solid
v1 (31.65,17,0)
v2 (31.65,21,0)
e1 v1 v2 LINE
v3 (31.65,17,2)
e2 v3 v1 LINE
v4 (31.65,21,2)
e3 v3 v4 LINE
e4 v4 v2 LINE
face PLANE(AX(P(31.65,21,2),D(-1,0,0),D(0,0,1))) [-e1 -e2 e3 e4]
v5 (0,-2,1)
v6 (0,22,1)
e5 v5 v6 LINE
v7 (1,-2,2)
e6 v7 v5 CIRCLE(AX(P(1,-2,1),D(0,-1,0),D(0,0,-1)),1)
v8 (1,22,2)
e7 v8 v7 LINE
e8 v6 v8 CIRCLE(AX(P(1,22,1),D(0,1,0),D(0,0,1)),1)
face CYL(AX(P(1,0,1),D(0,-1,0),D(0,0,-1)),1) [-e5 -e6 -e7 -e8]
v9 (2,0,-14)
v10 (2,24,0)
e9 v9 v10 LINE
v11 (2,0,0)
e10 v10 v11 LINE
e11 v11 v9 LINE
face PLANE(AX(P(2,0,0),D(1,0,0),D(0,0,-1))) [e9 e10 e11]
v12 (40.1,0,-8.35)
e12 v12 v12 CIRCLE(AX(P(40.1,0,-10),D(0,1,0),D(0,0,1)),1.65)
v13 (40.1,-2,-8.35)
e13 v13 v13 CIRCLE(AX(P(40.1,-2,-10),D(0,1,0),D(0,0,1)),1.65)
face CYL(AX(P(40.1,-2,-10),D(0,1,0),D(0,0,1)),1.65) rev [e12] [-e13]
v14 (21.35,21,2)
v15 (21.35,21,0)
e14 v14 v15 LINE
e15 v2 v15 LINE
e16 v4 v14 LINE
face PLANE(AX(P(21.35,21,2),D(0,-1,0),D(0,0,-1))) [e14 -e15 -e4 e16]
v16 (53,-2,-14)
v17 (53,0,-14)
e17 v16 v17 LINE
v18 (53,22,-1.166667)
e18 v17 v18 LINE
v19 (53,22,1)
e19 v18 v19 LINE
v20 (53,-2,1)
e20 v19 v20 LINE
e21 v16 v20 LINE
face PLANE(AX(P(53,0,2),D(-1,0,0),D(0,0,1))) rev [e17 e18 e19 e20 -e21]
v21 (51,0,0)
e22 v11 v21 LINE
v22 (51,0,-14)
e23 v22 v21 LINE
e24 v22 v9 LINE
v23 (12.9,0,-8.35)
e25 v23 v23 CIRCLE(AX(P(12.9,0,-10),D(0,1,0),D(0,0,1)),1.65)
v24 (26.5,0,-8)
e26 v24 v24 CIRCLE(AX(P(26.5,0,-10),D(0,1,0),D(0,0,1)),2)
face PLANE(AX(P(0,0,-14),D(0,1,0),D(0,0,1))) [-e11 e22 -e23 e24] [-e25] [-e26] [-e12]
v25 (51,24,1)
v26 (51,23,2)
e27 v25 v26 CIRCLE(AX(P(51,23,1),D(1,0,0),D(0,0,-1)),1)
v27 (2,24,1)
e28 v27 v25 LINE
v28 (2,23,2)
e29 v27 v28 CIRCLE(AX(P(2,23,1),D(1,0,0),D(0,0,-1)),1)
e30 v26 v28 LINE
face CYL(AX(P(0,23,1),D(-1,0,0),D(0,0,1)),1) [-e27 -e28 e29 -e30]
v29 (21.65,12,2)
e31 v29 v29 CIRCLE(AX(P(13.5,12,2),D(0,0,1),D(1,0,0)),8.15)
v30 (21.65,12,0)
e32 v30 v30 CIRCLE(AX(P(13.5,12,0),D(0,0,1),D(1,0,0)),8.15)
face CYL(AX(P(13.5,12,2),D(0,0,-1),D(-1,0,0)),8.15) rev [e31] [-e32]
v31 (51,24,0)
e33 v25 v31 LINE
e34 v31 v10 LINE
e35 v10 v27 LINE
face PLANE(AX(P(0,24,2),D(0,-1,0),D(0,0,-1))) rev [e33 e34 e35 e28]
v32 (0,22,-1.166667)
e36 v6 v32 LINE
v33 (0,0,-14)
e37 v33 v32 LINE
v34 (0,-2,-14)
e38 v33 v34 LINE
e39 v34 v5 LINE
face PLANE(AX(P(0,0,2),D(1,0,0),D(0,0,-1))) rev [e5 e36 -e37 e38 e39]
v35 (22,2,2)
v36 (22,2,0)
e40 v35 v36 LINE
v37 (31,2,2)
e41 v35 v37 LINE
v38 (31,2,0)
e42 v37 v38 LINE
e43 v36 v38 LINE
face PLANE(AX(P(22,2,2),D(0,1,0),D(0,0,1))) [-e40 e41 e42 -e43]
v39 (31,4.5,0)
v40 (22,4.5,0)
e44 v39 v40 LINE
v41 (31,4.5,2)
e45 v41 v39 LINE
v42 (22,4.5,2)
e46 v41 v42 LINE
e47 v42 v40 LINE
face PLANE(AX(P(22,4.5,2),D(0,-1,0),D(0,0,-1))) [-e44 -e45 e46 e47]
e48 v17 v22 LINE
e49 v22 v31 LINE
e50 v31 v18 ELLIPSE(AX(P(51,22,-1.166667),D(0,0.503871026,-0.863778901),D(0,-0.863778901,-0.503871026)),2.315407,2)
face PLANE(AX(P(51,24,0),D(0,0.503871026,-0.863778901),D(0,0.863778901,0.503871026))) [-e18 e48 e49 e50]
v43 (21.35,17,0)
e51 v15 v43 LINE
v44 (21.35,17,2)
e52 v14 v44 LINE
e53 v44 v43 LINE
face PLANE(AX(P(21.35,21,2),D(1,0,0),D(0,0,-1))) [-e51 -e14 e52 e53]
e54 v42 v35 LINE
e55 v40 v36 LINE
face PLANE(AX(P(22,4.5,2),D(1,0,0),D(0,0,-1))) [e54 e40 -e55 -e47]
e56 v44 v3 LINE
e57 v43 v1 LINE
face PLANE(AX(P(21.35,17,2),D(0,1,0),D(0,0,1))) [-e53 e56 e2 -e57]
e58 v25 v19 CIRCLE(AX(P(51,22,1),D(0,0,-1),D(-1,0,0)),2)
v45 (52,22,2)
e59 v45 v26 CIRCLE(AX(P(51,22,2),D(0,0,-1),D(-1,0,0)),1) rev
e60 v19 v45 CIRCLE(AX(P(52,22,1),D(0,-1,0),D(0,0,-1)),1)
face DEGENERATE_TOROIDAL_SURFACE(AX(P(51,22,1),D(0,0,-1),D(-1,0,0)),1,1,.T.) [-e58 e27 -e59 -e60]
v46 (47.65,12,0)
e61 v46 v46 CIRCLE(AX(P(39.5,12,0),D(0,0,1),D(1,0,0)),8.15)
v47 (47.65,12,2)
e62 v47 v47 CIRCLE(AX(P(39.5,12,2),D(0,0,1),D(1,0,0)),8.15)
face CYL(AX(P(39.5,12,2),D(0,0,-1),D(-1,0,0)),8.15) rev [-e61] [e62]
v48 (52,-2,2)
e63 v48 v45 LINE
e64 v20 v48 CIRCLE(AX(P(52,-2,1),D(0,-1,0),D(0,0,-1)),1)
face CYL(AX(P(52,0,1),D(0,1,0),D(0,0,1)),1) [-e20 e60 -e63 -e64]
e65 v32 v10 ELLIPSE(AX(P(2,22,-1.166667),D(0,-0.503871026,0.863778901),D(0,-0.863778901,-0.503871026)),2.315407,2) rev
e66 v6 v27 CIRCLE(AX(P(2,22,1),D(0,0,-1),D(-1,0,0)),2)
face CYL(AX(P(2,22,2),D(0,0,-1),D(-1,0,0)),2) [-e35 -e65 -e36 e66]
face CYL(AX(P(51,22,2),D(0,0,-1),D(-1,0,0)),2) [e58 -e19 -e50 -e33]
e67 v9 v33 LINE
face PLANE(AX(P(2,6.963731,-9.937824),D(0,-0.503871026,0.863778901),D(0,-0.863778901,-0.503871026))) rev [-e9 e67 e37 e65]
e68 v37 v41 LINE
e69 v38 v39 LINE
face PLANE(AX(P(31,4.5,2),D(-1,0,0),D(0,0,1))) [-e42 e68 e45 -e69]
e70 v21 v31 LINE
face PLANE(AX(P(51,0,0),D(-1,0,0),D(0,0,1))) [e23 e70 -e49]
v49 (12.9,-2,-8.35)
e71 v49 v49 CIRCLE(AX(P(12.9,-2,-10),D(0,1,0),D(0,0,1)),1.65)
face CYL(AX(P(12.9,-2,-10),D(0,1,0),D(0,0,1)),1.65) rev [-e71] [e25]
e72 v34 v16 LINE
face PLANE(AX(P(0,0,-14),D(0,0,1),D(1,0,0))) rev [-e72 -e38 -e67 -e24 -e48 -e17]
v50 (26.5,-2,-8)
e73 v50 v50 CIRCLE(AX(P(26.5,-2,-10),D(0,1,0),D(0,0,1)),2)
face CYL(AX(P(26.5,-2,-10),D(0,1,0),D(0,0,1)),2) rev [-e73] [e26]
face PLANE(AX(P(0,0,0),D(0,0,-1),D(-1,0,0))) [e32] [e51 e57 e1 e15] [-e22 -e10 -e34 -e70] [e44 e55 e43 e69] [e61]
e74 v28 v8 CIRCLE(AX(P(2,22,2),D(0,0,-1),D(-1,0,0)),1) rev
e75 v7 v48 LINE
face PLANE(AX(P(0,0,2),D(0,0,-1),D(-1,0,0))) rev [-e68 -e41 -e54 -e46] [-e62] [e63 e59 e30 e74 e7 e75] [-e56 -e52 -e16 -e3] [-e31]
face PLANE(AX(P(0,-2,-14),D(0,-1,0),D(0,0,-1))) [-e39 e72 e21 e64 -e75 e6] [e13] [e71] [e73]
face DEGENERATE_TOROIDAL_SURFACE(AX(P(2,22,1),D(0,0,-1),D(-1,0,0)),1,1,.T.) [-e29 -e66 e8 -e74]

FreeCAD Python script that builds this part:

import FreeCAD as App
import Part
import Sketcher


def edges_at(feature, points):
    """Names of the edges that pass closest to the given points."""
    edges = feature.Shape.Edges
    near = lambda p: min(range(len(edges)), key=lambda i: edges[i].distToShape(Part.Vertex(*p))[0])
    return sorted({f"Edge{near(p) + 1}" for p in points})


def add_polygon(sketch, points):
    """Adds a closed chain of lines whose ends are joined by coincident constraints."""
    first, n = sketch.GeometryCount, len(points)
    for a, b in zip(points, points[1:] + points[:1]):
        sketch.addGeometry(Part.LineSegment(App.Vector(*a, 0), App.Vector(*b, 0)), False)
    for i in range(n):
        sketch.addConstraint(Sketcher.Constraint("Coincident", first + i, 2, first + (i + 1) % n, 1))

doc = App.newDocument("Part")
body = doc.addObject("PartDesign::Body", "Body")

# Sketch on XY plane
sketch1 = body.newObject("Sketcher::SketchObject", "Sketch")
sketch1.AttachmentSupport = (doc.getObject("XY_Plane"), [""])
sketch1.MapMode = "FlatFace"
add_polygon(sketch1, [(0, 24), (0, 0), (53, 0), (53, 24)])  # lines 0-3
add_polygon(sketch1, [(31, 2), (22, 2), (22, 4.5), (31, 4.5)])  # lines 4-7
sketch1.addGeometry(Part.Circle(App.Vector(13.5, 12, 0), App.Vector(0, 0, 1), 8.15), False)  # 8
sketch1.addGeometry(Part.Circle(App.Vector(39.5, 12, 0), App.Vector(0, 0, 1), 8.15), False)  # 9
add_polygon(sketch1, [(31.65, 17), (21.35, 17), (21.35, 21), (31.65, 21)])  # lines 10-13
sketch1.addConstraint(Sketcher.Constraint("Vertical", 0))
sketch1.addConstraint(Sketcher.Constraint("Horizontal", 1))
sketch1.addConstraint(Sketcher.Constraint("Vertical", 2))
sketch1.addConstraint(Sketcher.Constraint("Horizontal", 3))
sketch1.addConstraint(Sketcher.Constraint("Horizontal", 4))
sketch1.addConstraint(Sketcher.Constraint("Vertical", 5))
sketch1.addConstraint(Sketcher.Constraint("Horizontal", 6))
sketch1.addConstraint(Sketcher.Constraint("Vertical", 7))
sketch1.addConstraint(Sketcher.Constraint("Horizontal", 10))
sketch1.addConstraint(Sketcher.Constraint("Vertical", 11))
sketch1.addConstraint(Sketcher.Constraint("Horizontal", 12))
sketch1.addConstraint(Sketcher.Constraint("Vertical", 13))
sketch1.addConstraint(Sketcher.Constraint("Coincident", 0, 2, -1, 1))
sketch1.addConstraint(Sketcher.Constraint("Equal", 8, 9))
sketch1.addConstraint(Sketcher.Constraint("Horizontal", 8, 3, 9, 3))
sketch1.addConstraint(Sketcher.Constraint("Diameter", 8, 16.3))
sketch1.addConstraint(Sketcher.Constraint("DistanceX", 1, 1, 1, 2, 53.0))
sketch1.addConstraint(Sketcher.Constraint("DistanceX", 4, 2, 4, 1, 9.0))
sketch1.addConstraint(Sketcher.Constraint("DistanceY", 0, 2, 0, 1, 24.0))
sketch1.addConstraint(Sketcher.Constraint("DistanceY", 11, 1, 11, 2, 4.0))
sketch1.addConstraint(Sketcher.Constraint("DistanceX", 10, 2, 10, 1, 10.3))
sketch1.addConstraint(Sketcher.Constraint("DistanceY", 5, 1, 5, 2, 2.5))
sketch1.addConstraint(Sketcher.Constraint("DistanceY", -1, 1, 8, 3, 12.0))
sketch1.addConstraint(Sketcher.Constraint("DistanceX", -1, 1, 4, 2, 22.0))
sketch1.addConstraint(Sketcher.Constraint("DistanceY", -1, 1, 4, 2, 2.0))
sketch1.addConstraint(Sketcher.Constraint("DistanceY", -1, 1, 10, 2, 17.0))
sketch1.addConstraint(Sketcher.Constraint("DistanceX", 8, 3, 9, 3, 26.0))
sketch1.addConstraint(Sketcher.Constraint("DistanceX", -1, 1, 8, 3, 13.5))
sketch1.addConstraint(Sketcher.Constraint("DistanceX", -1, 1, 10, 2, 21.35))
pad1 = body.newObject("PartDesign::Pad", "Pad")
pad1.Profile = sketch1
pad1.Length = 2

# Sketch on XY plane
sketch2 = body.newObject("Sketcher::SketchObject", "Sketch001")
sketch2.AttachmentSupport = (doc.getObject("XY_Plane"), [""])
sketch2.MapMode = "FlatFace"
sketch2.AttachmentOffset = App.Placement(App.Vector(0, 0, 2), App.Rotation())
add_polygon(sketch2, [(0, 0), (0, -2), (53, -2), (53, 0)])  # lines 0-3
sketch2.addConstraint(Sketcher.Constraint("Vertical", 0))
sketch2.addConstraint(Sketcher.Constraint("Horizontal", 1))
sketch2.addConstraint(Sketcher.Constraint("Vertical", 2))
sketch2.addConstraint(Sketcher.Constraint("Horizontal", 3))
sketch2.addConstraint(Sketcher.Constraint("Coincident", 3, 2, -1, 1))
sketch2.addConstraint(Sketcher.Constraint("DistanceX", 1, 1, 1, 2, 53.0))
sketch2.addConstraint(Sketcher.Constraint("DistanceY", 0, 2, 0, 1, 2.0))
pad2 = body.newObject("PartDesign::Pad", "Pad001")
pad2.Profile = sketch2
pad2.Length = 16
pad2.Reversed = True

# Sketch on YZ plane
sketch3 = body.newObject("Sketcher::SketchObject", "Sketch002")
sketch3.AttachmentSupport = (doc.getObject("YZ_Plane"), [""])
sketch3.MapMode = "FlatFace"
sketch3.AttachmentOffset = App.Placement(App.Vector(0, 0, 53), App.Rotation())
add_polygon(sketch3, [(-2, -14), (0, -14), (24, 0), (24, 2), (-2, 2)])  # lines 0-4
sketch3.addConstraint(Sketcher.Constraint("Horizontal", 0))
sketch3.addConstraint(Sketcher.Constraint("Vertical", 2))
sketch3.addConstraint(Sketcher.Constraint("Horizontal", 3))
sketch3.addConstraint(Sketcher.Constraint("Vertical", 4))
sketch3.addConstraint(Sketcher.Constraint("PointOnObject", 0, 2, -2))
sketch3.addConstraint(Sketcher.Constraint("PointOnObject", 1, 2, -1))
sketch3.addConstraint(Sketcher.Constraint("Equal", 0, 2))
sketch3.addConstraint(Sketcher.Constraint("DistanceX", 0, 1, 0, 2, 2.0))
sketch3.addConstraint(Sketcher.Constraint("DistanceX", 3, 2, 3, 1, 26.0))
sketch3.addConstraint(Sketcher.Constraint("DistanceY", 4, 2, 4, 1, 16.0))
pad3 = body.newObject("PartDesign::Pad", "Pad002")
pad3.Profile = sketch3
pad3.Length = 2
pad3.Reversed = True

# Sketch on YZ plane
sketch4 = body.newObject("Sketcher::SketchObject", "Sketch003")
sketch4.AttachmentSupport = (doc.getObject("YZ_Plane"), [""])
sketch4.MapMode = "FlatFace"
add_polygon(sketch4, [(-2, -14), (0, -14), (24, 0), (24, 2), (-2, 2)])  # lines 0-4
sketch4.addConstraint(Sketcher.Constraint("Horizontal", 0))
sketch4.addConstraint(Sketcher.Constraint("Vertical", 2))
sketch4.addConstraint(Sketcher.Constraint("Horizontal", 3))
sketch4.addConstraint(Sketcher.Constraint("Vertical", 4))
sketch4.addConstraint(Sketcher.Constraint("PointOnObject", 0, 2, -2))
sketch4.addConstraint(Sketcher.Constraint("PointOnObject", 1, 2, -1))
sketch4.addConstraint(Sketcher.Constraint("Equal", 0, 2))
sketch4.addConstraint(Sketcher.Constraint("DistanceX", 0, 1, 0, 2, 2.0))
sketch4.addConstraint(Sketcher.Constraint("DistanceX", 3, 2, 3, 1, 26.0))
sketch4.addConstraint(Sketcher.Constraint("DistanceY", 4, 2, 4, 1, 16.0))
pad4 = body.newObject("PartDesign::Pad", "Pad003")
pad4.Profile = sketch4
pad4.Length = 2

# Sketch on XZ plane
sketch5 = body.newObject("Sketcher::SketchObject", "Sketch004")
sketch5.AttachmentSupport = (doc.getObject("XZ_Plane"), [""])
sketch5.MapMode = "FlatFace"
sketch5.addGeometry(Part.Circle(App.Vector(12.9, -10, 0), App.Vector(0, 0, 1), 1.65), False)
sketch5.addGeometry(Part.Circle(App.Vector(40.1, -10, 0), App.Vector(0, 0, 1), 1.65), False)
sketch5.addGeometry(Part.Circle(App.Vector(26.5, -10, 0), App.Vector(0, 0, 1), 2), False)
sketch5.addConstraint(Sketcher.Constraint("Equal", 0, 1))
sketch5.addConstraint(Sketcher.Constraint("Horizontal", 0, 3, 1, 3))
sketch5.addConstraint(Sketcher.Constraint("Horizontal", 1, 3, 2, 3))
sketch5.addConstraint(Sketcher.Constraint("Diameter", 2, 4.0))
sketch5.addConstraint(Sketcher.Constraint("Diameter", 0, 3.3))
sketch5.addConstraint(Sketcher.Constraint("DistanceY", 0, 3, -1, 1, 10.0))
sketch5.addConstraint(Sketcher.Constraint("DistanceX", -1, 1, 0, 3, 12.9))
sketch5.addConstraint(Sketcher.Constraint("DistanceX", -1, 1, 1, 3, 40.1))
sketch5.addConstraint(Sketcher.Constraint("DistanceX", -1, 1, 2, 3, 26.5))
pocket1 = body.newObject("PartDesign::Pocket", "Pocket")
pocket1.Profile = sketch5
pocket1.Length = 2
pocket1.Reversed = True
doc.recompute()

fillet = body.newObject("PartDesign::Fillet", "Fillet")
fillet.Base = (pocket1, edges_at(pocket1, [(0, 24, 1), (53, 24, 1)]))
fillet.Radius = 2
doc.recompute()

fillet2 = body.newObject("PartDesign::Fillet", "Fillet001")
fillet2.Base = (fillet, edges_at(fillet, [
    (53, 10, 2),
    (0, 10, 2),
    (26.5, 24, 2),
    (52.414, 23.414, 2),
    (0.586, 23.414, 2),
]))
fillet2.Radius = 1

doc.recompute()
